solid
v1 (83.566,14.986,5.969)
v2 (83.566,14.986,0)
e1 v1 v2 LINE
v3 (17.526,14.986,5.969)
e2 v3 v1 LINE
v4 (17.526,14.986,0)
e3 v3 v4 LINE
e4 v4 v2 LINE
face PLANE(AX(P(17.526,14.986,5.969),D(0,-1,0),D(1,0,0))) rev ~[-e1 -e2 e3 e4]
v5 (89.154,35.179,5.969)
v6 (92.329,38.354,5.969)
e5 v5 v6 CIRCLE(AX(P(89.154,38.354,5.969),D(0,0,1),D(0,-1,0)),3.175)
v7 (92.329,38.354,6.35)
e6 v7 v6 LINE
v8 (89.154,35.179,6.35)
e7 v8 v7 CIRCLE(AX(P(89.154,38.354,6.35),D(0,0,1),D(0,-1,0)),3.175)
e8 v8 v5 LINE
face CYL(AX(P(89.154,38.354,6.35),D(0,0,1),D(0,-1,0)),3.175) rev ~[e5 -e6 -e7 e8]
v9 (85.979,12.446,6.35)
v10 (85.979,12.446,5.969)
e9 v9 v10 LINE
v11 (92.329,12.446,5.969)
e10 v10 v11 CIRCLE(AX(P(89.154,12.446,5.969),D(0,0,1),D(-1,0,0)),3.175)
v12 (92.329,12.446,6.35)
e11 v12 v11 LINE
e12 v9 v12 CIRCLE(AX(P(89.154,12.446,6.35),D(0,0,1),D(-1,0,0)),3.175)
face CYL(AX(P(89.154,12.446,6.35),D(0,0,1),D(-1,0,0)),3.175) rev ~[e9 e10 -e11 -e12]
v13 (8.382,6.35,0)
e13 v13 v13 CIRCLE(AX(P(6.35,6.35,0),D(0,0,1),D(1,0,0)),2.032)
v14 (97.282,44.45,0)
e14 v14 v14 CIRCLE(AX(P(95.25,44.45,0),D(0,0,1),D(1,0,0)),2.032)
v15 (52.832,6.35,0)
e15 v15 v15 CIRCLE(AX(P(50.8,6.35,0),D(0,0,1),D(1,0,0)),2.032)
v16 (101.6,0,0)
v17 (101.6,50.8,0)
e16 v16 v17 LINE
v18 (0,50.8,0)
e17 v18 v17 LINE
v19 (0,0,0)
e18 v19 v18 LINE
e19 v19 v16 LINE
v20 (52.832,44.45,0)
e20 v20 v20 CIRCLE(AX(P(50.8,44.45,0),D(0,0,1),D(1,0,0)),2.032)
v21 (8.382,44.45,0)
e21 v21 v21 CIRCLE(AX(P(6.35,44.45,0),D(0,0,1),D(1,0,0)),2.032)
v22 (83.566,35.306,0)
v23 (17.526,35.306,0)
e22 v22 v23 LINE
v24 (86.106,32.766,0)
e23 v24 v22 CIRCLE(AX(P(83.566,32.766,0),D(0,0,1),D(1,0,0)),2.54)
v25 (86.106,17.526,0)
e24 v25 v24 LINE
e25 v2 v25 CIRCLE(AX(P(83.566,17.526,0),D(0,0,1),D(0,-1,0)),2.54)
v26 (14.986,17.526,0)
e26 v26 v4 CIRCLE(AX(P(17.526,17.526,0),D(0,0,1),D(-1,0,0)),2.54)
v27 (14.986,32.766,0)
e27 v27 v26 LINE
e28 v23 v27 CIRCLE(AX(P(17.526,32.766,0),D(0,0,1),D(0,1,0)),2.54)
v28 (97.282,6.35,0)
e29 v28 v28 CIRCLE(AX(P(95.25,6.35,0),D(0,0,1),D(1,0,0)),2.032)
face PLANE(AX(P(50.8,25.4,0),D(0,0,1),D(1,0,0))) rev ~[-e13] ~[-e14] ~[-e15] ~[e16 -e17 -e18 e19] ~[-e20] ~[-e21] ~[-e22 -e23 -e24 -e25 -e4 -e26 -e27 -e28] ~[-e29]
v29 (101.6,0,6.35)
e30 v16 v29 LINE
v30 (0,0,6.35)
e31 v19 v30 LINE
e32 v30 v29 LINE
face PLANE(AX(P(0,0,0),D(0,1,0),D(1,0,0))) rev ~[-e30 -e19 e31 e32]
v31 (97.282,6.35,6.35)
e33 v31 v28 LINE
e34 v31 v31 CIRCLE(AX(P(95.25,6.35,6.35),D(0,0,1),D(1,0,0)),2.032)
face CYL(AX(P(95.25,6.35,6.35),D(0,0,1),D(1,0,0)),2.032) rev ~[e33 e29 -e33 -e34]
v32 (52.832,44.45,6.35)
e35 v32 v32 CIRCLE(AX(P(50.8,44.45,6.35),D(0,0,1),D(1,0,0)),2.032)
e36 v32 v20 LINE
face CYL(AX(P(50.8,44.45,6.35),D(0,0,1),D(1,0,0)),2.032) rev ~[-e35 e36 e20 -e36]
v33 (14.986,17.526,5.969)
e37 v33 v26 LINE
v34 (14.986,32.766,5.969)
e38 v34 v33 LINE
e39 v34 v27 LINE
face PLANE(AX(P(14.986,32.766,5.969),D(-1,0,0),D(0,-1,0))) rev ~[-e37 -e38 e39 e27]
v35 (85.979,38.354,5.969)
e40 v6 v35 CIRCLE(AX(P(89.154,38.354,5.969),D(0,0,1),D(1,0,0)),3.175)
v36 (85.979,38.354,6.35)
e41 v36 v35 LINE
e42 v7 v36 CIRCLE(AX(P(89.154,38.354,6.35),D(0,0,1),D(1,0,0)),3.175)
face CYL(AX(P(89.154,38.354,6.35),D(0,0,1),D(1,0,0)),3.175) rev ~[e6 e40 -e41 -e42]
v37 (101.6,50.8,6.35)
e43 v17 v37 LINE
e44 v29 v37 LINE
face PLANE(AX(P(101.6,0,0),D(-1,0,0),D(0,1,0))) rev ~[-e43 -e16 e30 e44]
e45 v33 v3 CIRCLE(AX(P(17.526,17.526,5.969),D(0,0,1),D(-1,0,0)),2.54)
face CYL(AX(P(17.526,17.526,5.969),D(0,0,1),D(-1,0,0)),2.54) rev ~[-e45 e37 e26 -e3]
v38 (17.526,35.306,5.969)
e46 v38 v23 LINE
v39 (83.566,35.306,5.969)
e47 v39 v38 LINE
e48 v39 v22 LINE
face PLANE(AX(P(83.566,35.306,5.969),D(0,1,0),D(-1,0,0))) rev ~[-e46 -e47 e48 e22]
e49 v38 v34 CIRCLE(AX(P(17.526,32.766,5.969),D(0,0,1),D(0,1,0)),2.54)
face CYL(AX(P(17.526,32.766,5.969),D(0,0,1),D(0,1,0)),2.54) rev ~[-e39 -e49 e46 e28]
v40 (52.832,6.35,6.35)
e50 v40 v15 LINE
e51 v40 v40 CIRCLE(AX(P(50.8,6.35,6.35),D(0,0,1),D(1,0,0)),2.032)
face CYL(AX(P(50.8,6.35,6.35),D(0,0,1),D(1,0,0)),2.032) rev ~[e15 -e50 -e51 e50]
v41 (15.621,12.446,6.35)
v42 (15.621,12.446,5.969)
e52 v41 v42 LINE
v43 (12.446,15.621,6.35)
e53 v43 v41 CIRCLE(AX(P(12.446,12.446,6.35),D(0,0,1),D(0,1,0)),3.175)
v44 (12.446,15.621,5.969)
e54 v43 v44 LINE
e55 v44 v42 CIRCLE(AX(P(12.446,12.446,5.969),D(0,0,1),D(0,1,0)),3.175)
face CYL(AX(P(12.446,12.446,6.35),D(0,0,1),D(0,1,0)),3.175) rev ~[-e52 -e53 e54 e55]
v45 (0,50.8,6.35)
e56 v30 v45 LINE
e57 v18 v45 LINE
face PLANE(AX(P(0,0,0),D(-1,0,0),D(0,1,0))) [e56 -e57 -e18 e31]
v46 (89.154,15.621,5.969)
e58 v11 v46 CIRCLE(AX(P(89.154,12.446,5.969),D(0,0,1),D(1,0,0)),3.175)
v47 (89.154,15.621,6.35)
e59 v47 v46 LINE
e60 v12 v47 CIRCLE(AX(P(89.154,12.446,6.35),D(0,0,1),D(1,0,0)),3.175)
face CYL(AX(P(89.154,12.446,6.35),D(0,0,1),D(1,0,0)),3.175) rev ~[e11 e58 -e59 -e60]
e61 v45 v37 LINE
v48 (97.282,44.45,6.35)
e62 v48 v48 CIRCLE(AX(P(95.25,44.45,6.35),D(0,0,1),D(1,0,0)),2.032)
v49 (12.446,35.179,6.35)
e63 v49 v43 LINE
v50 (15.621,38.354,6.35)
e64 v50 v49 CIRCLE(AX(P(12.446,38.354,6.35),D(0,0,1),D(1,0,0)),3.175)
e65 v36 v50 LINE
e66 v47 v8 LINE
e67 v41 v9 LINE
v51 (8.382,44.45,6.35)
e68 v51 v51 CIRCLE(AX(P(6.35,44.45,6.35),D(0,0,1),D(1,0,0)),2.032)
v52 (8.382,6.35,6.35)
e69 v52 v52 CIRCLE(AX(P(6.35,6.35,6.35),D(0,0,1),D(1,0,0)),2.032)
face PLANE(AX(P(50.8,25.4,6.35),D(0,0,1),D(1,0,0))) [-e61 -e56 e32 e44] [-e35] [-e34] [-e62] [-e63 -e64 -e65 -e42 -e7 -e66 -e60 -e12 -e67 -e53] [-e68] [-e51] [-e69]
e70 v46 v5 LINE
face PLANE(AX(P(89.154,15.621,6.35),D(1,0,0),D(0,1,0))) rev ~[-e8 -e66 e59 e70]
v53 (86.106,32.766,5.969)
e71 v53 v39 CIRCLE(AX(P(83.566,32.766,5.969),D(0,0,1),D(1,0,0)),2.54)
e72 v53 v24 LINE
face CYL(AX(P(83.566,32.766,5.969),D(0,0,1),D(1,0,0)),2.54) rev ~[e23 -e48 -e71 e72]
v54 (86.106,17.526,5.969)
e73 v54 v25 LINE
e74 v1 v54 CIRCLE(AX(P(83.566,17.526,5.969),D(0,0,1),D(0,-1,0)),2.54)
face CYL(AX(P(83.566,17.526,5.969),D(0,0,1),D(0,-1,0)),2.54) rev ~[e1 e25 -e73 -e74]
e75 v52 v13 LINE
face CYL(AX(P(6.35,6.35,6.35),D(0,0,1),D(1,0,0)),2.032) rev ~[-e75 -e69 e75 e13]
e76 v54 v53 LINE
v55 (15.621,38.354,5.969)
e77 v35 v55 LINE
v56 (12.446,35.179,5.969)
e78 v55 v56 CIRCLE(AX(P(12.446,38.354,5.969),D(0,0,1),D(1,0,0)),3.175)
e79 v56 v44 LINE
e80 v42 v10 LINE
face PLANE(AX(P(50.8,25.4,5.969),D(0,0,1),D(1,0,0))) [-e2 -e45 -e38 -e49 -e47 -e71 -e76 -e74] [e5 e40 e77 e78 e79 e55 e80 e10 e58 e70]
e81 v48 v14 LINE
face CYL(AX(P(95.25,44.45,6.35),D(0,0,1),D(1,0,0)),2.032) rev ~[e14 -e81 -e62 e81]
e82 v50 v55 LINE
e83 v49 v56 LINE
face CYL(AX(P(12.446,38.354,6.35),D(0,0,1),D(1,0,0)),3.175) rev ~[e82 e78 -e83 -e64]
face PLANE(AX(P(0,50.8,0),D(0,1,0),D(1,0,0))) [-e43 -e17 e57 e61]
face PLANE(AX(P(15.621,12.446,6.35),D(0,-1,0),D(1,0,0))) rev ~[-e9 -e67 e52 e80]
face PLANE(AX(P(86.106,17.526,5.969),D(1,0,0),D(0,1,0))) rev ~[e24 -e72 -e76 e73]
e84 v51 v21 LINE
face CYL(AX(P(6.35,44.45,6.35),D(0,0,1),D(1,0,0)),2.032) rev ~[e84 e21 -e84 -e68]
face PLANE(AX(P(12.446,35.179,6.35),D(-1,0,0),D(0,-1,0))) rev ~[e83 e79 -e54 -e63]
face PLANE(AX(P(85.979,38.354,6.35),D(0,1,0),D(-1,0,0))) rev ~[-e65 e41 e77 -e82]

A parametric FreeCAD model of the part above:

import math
import FreeCAD as App
import Part
import Sketcher
Q = App.Units.Quantity


def add_polygon(sketch, points):
    """Adds a closed chain of lines whose ends are joined by coincident constraints."""
    first, n = sketch.GeometryCount, len(points)
    for a, b in zip(points, points[1:] + points[:1]):
        sketch.addGeometry(Part.LineSegment(App.Vector(*a, 0), App.Vector(*b, 0)), False)
    for i in range(n):
        sketch.addConstraint(Sketcher.Constraint("Coincident", first + i, 2, first + (i + 1) % n, 1))

doc = App.newDocument("Part")
body = doc.addObject("PartDesign::Body", "Body")

# Sketch on XY plane
sketch1 = doc.addObject("Sketcher::SketchObject", "Sketch")
body.addObject(sketch1)
sketch1.AttachmentSupport = (doc.XY_Plane, [""])
sketch1.MapMode = "FlatFace"
add_polygon(sketch1, [(0, 51), (0, 0), (102, 0), (102, 51)])  # lines 0-3
sketch1.addConstraint(Sketcher.Constraint("Vertical", 0))
sketch1.addConstraint(Sketcher.Constraint("Horizontal", 1))
sketch1.addConstraint(Sketcher.Constraint("Vertical", 2))
sketch1.addConstraint(Sketcher.Constraint("Horizontal", 3))
sketch1.addConstraint(Sketcher.Constraint("Coincident", 0, 2, -1, 1))
sketch1.addConstraint(Sketcher.Constraint("DistanceX", 1, 1, 1, 2, Q("4 in")))
sketch1.addConstraint(Sketcher.Constraint("DistanceY", 0, 2, 0, 1, Q("2 in")))
pad1 = doc.addObject("PartDesign::Pad", "Pad")
body.addObject(pad1)
pad1.Profile = sketch1
pad1.Length = Q("0.25 in")

# Sketch on XY plane
sketch2 = doc.addObject("Sketcher::SketchObject", "Sketch001")
body.addObject(sketch2)
sketch2.AttachmentSupport = (doc.XY_Plane, [""])
sketch2.MapMode = "FlatFace"
sketch2.AttachmentOffset = App.Placement(App.Vector(0, 0, 0.25 * 25.4), App.Rotation())
sketch2.addGeometry(Part.LineSegment(App.Vector(15.6, 12.4, 0), App.Vector(86, 12.4, 0)), False)
sketch2.addGeometry(Part.ArcOfCircle(Part.Circle(App.Vector(89.2, 12.4, 0), App.Vector(0, 0, 1), 3.2), math.radians(180), math.radians(360)), False)
sketch2.addGeometry(Part.ArcOfCircle(Part.Circle(App.Vector(89.2, 12.4, 0), App.Vector(0, 0, 1), 3.2), math.radians(0), math.radians(90)), False)
sketch2.addGeometry(Part.LineSegment(App.Vector(89.2, 15.6, 0), App.Vector(89.2, 35.2, 0)), False)
sketch2.addGeometry(Part.ArcOfCircle(Part.Circle(App.Vector(89.2, 38.4, 0), App.Vector(0, 0, 1), 3.2), math.radians(-90), math.radians(0)), False)
sketch2.addGeometry(Part.ArcOfCircle(Part.Circle(App.Vector(89.2, 38.4, 0), App.Vector(0, 0, 1), 3.2), math.radians(0), math.radians(180)), False)
sketch2.addGeometry(Part.LineSegment(App.Vector(86, 38.4, 0), App.Vector(15.6, 38.4, 0)), False)
sketch2.addGeometry(Part.ArcOfCircle(Part.Circle(App.Vector(12.4, 38.4, 0), App.Vector(0, 0, 1), 3.2), math.radians(0), math.radians(270)), False)
sketch2.addGeometry(Part.LineSegment(App.Vector(12.4, 35.2, 0), App.Vector(12.4, 15.6, 0)), False)
sketch2.addGeometry(Part.ArcOfCircle(Part.Circle(App.Vector(12.4, 12.4, 0), App.Vector(0, 0, 1), 3.2), math.radians(90), math.radians(360)), False)
sketch2.addConstraint(Sketcher.Constraint("Coincident", 0, 2, 1, 1))
sketch2.addConstraint(Sketcher.Constraint("Tangent", 1, 2, 2, 1))
sketch2.addConstraint(Sketcher.Constraint("Coincident", 2, 2, 3, 1))
sketch2.addConstraint(Sketcher.Constraint("Coincident", 3, 2, 4, 1))
sketch2.addConstraint(Sketcher.Constraint("Tangent", 4, 2, 5, 1))
sketch2.addConstraint(Sketcher.Constraint("Coincident", 5, 2, 6, 1))
sketch2.addConstraint(Sketcher.Constraint("Coincident", 6, 2, 7, 1))
sketch2.addConstraint(Sketcher.Constraint("Coincident", 7, 2, 8, 1))
sketch2.addConstraint(Sketcher.Constraint("Coincident", 8, 2, 9, 1))
sketch2.addConstraint(Sketcher.Constraint("Coincident", 9, 2, 0, 1))
sketch2.addConstraint(Sketcher.Constraint("Horizontal", 0))
sketch2.addConstraint(Sketcher.Constraint("Vertical", 3))
sketch2.addConstraint(Sketcher.Constraint("Horizontal", 6))
sketch2.addConstraint(Sketcher.Constraint("Vertical", 8))
sketch2.addConstraint(Sketcher.Constraint("Equal", 1, 2))
sketch2.addConstraint(Sketcher.Constraint("Equal", 2, 4))
sketch2.addConstraint(Sketcher.Constraint("Equal", 4, 5))
sketch2.addConstraint(Sketcher.Constraint("Equal", 5, 7))
sketch2.addConstraint(Sketcher.Constraint("Equal", 7, 9))
sketch2.addConstraint(Sketcher.Constraint("Horizontal", 5, 3, 7, 3))
sketch2.addConstraint(Sketcher.Constraint("Horizontal", 2, 3, 9, 3))
sketch2.addConstraint(Sketcher.Constraint("Horizontal", 9, 3, 0, 2))
sketch2.addConstraint(Sketcher.Constraint("Horizontal", 0, 2, 1, 2))
sketch2.addConstraint(Sketcher.Constraint("Horizontal", 7, 3, 4, 2))
sketch2.addConstraint(Sketcher.Constraint("Horizontal", 4, 2, 5, 2))
sketch2.addConstraint(Sketcher.Constraint("Vertical", 2, 3, 4, 3))
sketch2.addConstraint(Sketcher.Constraint("Vertical", 7, 3, 9, 3))
sketch2.addConstraint(Sketcher.Constraint("Vertical", 5, 3, 2, 2))
sketch2.addConstraint(Sketcher.Constraint("Vertical", 9, 3, 7, 2))
sketch2.addConstraint(Sketcher.Constraint("Radius", 1, Q("0.125 in")))
sketch2.addConstraint(Sketcher.Constraint("DistanceX", 0, 1, 0, 2, Q("2.77 in")))
sketch2.addConstraint(Sketcher.Constraint("DistanceY", 3, 1, 3, 2, Q("0.77 in")))
sketch2.addConstraint(Sketcher.Constraint("DistanceX", -1, 1, 1, 3, Q("3.51 in")))
sketch2.addConstraint(Sketcher.Constraint("DistanceY", -1, 1, 1, 3, Q("0.49 in")))
pocket1 = doc.addObject("PartDesign::Pocket", "Pocket")
body.addObject(pocket1)
pocket1.Profile = sketch2
pocket1.Length = Q("0.015 in")

# Sketch on XY plane
sketch3 = doc.addObject("Sketcher::SketchObject", "Sketch002")
body.addObject(sketch3)
sketch3.AttachmentSupport = (doc.XY_Plane, [""])
sketch3.MapMode = "FlatFace"
sketch3.AttachmentOffset = App.Placement(App.Vector(0, 0, 0.235 * 25.4), App.Rotation())
sketch3.addGeometry(Part.ArcOfCircle(Part.Circle(App.Vector(17.5, 17.5, 0), App.Vector(0, 0, 1), 2.5), math.radians(180), math.radians(270)), False)
sketch3.addGeometry(Part.LineSegment(App.Vector(17.5, 15, 0), App.Vector(83.6, 15, 0)), False)
sketch3.addGeometry(Part.ArcOfCircle(Part.Circle(App.Vector(83.6, 17.5, 0), App.Vector(0, 0, 1), 2.5), math.radians(-90), math.radians(0)), False)
sketch3.addGeometry(Part.LineSegment(App.Vector(86.1, 17.5, 0), App.Vector(86.1, 32.8, 0)), False)
sketch3.addGeometry(Part.ArcOfCircle(Part.Circle(App.Vector(83.6, 32.8, 0), App.Vector(0, 0, 1), 2.5), math.radians(0), math.radians(90)), False)
sketch3.addGeometry(Part.LineSegment(App.Vector(83.6, 35.3, 0), App.Vector(17.5, 35.3, 0)), False)
sketch3.addGeometry(Part.ArcOfCircle(Part.Circle(App.Vector(17.5, 32.8, 0), App.Vector(0, 0, 1), 2.5), math.radians(90), math.radians(180)), False)
sketch3.addGeometry(Part.LineSegment(App.Vector(15, 32.8, 0), App.Vector(15, 17.5, 0)), False)
sketch3.addConstraint(Sketcher.Constraint("Tangent", 0, 2, 1, 1))
sketch3.addConstraint(Sketcher.Constraint("Tangent", 1, 2, 2, 1))
sketch3.addConstraint(Sketcher.Constraint("Tangent", 2, 2, 3, 1))
sketch3.addConstraint(Sketcher.Constraint("Tangent", 3, 2, 4, 1))
sketch3.addConstraint(Sketcher.Constraint("Tangent", 4, 2, 5, 1))
sketch3.addConstraint(Sketcher.Constraint("Tangent", 5, 2, 6, 1))
sketch3.addConstraint(Sketcher.Constraint("Tangent", 6, 2, 7, 1))
sketch3.addConstraint(Sketcher.Constraint("Tangent", 7, 2, 0, 1))
sketch3.addConstraint(Sketcher.Constraint("Horizontal", 1))
sketch3.addConstraint(Sketcher.Constraint("Vertical", 3))
sketch3.addConstraint(Sketcher.Constraint("Horizontal", 5))
sketch3.addConstraint(Sketcher.Constraint("Vertical", 7))
sketch3.addConstraint(Sketcher.Constraint("Equal", 0, 2))
sketch3.addConstraint(Sketcher.Constraint("Equal", 2, 4))
sketch3.addConstraint(Sketcher.Constraint("Equal", 4, 6))
sketch3.addConstraint(Sketcher.Constraint("Radius", 0, Q("0.1 in")))
sketch3.addConstraint(Sketcher.Constraint("DistanceX", 1, 1, 1, 2, Q("2.6 in")))
sketch3.addConstraint(Sketcher.Constraint("DistanceY", 3, 1, 3, 2, Q("0.6 in")))
sketch3.addConstraint(Sketcher.Constraint("DistanceX", -1, 1, 0, 3, Q("0.69 in")))
sketch3.addConstraint(Sketcher.Constraint("DistanceY", -1, 1, 0, 3, Q("0.69 in")))
pocket2 = doc.addObject("PartDesign::Pocket", "Pocket001")
body.addObject(pocket2)
pocket2.Profile = sketch3
pocket2.Type = "ThroughAll"

# Sketch on XY plane
sketch4 = doc.addObject("Sketcher::SketchObject", "Sketch003")
body.addObject(sketch4)
sketch4.AttachmentSupport = (doc.XY_Plane, [""])
sketch4.MapMode = "FlatFace"
sketch4.AttachmentOffset = App.Placement(App.Vector(0, 0, 0.25 * 25.4), App.Rotation())
sketch4.addGeometry(Part.Circle(App.Vector(6.3, 44.5, 0), App.Vector(0, 0, 1), 2), False)
sketch4.addGeometry(Part.Circle(App.Vector(50.8, 44.5, 0), App.Vector(0, 0, 1), 2), False)
sketch4.addGeometry(Part.Circle(App.Vector(95.2, 44.5, 0), App.Vector(0, 0, 1), 2), False)
sketch4.addGeometry(Part.Circle(App.Vector(95.2, 6.3, 0), App.Vector(0, 0, 1), 2), False)
sketch4.addGeometry(Part.Circle(App.Vector(50.8, 6.3, 0), App.Vector(0, 0, 1), 2), False)
sketch4.addGeometry(Part.Circle(App.Vector(6.3, 6.3, 0), App.Vector(0, 0, 1), 2), False)
sketch4.addConstraint(Sketcher.Constraint("Equal", 0, 1))
sketch4.addConstraint(Sketcher.Constraint("Equal", 1, 2))
sketch4.addConstraint(Sketcher.Constraint("Equal", 2, 3))
sketch4.addConstraint(Sketcher.Constraint("Equal", 3, 4))
sketch4.addConstraint(Sketcher.Constraint("Equal", 4, 5))
sketch4.addConstraint(Sketcher.Constraint("Horizontal", 0, 3, 1, 3))
sketch4.addConstraint(Sketcher.Constraint("Horizontal", 1, 3, 2, 3))
sketch4.addConstraint(Sketcher.Constraint("Horizontal", 3, 3, 4, 3))
sketch4.addConstraint(Sketcher.Constraint("Horizontal", 4, 3, 5, 3))
sketch4.addConstraint(Sketcher.Constraint("Vertical", 2, 3, 3, 3))
sketch4.addConstraint(Sketcher.Constraint("Vertical", 1, 3, 4, 3))
sketch4.addConstraint(Sketcher.Constraint("Vertical", 0, 3, 5, 3))
sketch4.addConstraint(Sketcher.Constraint("Diameter", 0, Q("0.16 in")))
sketch4.addConstraint(Sketcher.Constraint("DistanceX", -1, 1, 1, 3, Q("2 in")))
sketch4.addConstraint(Sketcher.Constraint("DistanceX", 0, 3, 2, 3, Q("3.5 in")))
sketch4.addConstraint(Sketcher.Constraint("DistanceY", 3, 3, 2, 3, Q("1.5 in")))
sketch4.addConstraint(Sketcher.Constraint("DistanceX", -1, 1, 0, 3, Q("0.25 in")))
sketch4.addConstraint(Sketcher.Constraint("DistanceY", -1, 1, 0, 3, Q("1.75 in")))
pocket3 = doc.addObject("PartDesign::Pocket", "Pocket002")
body.addObject(pocket3)
pocket3.Profile = sketch4
pocket3.Type = "ThroughAll"

doc.recompute()
